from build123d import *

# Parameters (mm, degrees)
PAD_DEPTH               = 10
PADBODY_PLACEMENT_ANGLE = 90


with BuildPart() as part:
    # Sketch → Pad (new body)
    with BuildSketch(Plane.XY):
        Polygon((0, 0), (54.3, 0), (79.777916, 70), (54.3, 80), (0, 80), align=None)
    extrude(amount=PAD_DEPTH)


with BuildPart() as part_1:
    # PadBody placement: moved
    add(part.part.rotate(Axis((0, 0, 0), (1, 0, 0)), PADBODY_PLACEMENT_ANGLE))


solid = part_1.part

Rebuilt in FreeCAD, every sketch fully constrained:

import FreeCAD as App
import Part
import Sketcher

V = App.Vector
Q = App.Units.Quantity

doc = App.newDocument("Part")
body = doc.addObject("PartDesign::Body", "Body")

# Sketch on XY plane
sketch1 = body.newObject("Sketcher::SketchObject", "Sketch")
sketch1.AttachmentSupport = (doc.getObject("XY_Plane"), [""])
sketch1.MapMode = "FlatFace"
sketch1.addGeometry([
    Part.LineSegment(V(0, 0, 0), V(54, 0, 0)),  # 0
    Part.LineSegment(V(54, 0, 0), V(80, 70, 0)),  # 1
    Part.LineSegment(V(80, 70, 0), V(54, 80, 0)),  # 2
    Part.LineSegment(V(54, 80, 0), V(0, 80, 0)),  # 3
    Part.LineSegment(V(0, 80, 0), V(0, 0, 0)),  # 4
], False)
sketch1.addConstraint([
    Sketcher.Constraint("Coincident", 0, 2, 1, 1),
    Sketcher.Constraint("Coincident", 1, 2, 2, 1),
    Sketcher.Constraint("Coincident", 2, 2, 3, 1),
    Sketcher.Constraint("Coincident", 3, 2, 4, 1),
    Sketcher.Constraint("Coincident", 4, 2, 0, 1),
    Sketcher.Constraint("Horizontal", 0),
    Sketcher.Constraint("Horizontal", 3),
    Sketcher.Constraint("Vertical", 4),
    Sketcher.Constraint("Coincident", 4, 2, -1, 1),
    Sketcher.Constraint("Vertical", 0, 2, 2, 2),
    Sketcher.Constraint("DistanceY", 4, 2, 4, 1, Q("80 mm")),
    Sketcher.Constraint("Angle", 1, Q("70 deg")),
    Sketcher.Constraint("DistanceX", 0, 1, 0, 2, Q("54.3 mm")),
    Sketcher.Constraint("DistanceY", -1, 1, 1, 2, Q("70 mm")),
])
pad1 = body.newObject("PartDesign::Pad", "Pad")
pad1.Profile = sketch1
pad1.Length = 10
body2 = doc.addObject("PartDesign::Body", "Body001")
doc.recompute()

body.Placement = App.Placement(V(0, 0, 0), App.Rotation(V(1, 0, 0), 90))
boolean = body2.newObject("PartDesign::Boolean", "Boolean")
boolean.Type = "Fuse"
boolean.addObjects([body])

doc.recompute()
